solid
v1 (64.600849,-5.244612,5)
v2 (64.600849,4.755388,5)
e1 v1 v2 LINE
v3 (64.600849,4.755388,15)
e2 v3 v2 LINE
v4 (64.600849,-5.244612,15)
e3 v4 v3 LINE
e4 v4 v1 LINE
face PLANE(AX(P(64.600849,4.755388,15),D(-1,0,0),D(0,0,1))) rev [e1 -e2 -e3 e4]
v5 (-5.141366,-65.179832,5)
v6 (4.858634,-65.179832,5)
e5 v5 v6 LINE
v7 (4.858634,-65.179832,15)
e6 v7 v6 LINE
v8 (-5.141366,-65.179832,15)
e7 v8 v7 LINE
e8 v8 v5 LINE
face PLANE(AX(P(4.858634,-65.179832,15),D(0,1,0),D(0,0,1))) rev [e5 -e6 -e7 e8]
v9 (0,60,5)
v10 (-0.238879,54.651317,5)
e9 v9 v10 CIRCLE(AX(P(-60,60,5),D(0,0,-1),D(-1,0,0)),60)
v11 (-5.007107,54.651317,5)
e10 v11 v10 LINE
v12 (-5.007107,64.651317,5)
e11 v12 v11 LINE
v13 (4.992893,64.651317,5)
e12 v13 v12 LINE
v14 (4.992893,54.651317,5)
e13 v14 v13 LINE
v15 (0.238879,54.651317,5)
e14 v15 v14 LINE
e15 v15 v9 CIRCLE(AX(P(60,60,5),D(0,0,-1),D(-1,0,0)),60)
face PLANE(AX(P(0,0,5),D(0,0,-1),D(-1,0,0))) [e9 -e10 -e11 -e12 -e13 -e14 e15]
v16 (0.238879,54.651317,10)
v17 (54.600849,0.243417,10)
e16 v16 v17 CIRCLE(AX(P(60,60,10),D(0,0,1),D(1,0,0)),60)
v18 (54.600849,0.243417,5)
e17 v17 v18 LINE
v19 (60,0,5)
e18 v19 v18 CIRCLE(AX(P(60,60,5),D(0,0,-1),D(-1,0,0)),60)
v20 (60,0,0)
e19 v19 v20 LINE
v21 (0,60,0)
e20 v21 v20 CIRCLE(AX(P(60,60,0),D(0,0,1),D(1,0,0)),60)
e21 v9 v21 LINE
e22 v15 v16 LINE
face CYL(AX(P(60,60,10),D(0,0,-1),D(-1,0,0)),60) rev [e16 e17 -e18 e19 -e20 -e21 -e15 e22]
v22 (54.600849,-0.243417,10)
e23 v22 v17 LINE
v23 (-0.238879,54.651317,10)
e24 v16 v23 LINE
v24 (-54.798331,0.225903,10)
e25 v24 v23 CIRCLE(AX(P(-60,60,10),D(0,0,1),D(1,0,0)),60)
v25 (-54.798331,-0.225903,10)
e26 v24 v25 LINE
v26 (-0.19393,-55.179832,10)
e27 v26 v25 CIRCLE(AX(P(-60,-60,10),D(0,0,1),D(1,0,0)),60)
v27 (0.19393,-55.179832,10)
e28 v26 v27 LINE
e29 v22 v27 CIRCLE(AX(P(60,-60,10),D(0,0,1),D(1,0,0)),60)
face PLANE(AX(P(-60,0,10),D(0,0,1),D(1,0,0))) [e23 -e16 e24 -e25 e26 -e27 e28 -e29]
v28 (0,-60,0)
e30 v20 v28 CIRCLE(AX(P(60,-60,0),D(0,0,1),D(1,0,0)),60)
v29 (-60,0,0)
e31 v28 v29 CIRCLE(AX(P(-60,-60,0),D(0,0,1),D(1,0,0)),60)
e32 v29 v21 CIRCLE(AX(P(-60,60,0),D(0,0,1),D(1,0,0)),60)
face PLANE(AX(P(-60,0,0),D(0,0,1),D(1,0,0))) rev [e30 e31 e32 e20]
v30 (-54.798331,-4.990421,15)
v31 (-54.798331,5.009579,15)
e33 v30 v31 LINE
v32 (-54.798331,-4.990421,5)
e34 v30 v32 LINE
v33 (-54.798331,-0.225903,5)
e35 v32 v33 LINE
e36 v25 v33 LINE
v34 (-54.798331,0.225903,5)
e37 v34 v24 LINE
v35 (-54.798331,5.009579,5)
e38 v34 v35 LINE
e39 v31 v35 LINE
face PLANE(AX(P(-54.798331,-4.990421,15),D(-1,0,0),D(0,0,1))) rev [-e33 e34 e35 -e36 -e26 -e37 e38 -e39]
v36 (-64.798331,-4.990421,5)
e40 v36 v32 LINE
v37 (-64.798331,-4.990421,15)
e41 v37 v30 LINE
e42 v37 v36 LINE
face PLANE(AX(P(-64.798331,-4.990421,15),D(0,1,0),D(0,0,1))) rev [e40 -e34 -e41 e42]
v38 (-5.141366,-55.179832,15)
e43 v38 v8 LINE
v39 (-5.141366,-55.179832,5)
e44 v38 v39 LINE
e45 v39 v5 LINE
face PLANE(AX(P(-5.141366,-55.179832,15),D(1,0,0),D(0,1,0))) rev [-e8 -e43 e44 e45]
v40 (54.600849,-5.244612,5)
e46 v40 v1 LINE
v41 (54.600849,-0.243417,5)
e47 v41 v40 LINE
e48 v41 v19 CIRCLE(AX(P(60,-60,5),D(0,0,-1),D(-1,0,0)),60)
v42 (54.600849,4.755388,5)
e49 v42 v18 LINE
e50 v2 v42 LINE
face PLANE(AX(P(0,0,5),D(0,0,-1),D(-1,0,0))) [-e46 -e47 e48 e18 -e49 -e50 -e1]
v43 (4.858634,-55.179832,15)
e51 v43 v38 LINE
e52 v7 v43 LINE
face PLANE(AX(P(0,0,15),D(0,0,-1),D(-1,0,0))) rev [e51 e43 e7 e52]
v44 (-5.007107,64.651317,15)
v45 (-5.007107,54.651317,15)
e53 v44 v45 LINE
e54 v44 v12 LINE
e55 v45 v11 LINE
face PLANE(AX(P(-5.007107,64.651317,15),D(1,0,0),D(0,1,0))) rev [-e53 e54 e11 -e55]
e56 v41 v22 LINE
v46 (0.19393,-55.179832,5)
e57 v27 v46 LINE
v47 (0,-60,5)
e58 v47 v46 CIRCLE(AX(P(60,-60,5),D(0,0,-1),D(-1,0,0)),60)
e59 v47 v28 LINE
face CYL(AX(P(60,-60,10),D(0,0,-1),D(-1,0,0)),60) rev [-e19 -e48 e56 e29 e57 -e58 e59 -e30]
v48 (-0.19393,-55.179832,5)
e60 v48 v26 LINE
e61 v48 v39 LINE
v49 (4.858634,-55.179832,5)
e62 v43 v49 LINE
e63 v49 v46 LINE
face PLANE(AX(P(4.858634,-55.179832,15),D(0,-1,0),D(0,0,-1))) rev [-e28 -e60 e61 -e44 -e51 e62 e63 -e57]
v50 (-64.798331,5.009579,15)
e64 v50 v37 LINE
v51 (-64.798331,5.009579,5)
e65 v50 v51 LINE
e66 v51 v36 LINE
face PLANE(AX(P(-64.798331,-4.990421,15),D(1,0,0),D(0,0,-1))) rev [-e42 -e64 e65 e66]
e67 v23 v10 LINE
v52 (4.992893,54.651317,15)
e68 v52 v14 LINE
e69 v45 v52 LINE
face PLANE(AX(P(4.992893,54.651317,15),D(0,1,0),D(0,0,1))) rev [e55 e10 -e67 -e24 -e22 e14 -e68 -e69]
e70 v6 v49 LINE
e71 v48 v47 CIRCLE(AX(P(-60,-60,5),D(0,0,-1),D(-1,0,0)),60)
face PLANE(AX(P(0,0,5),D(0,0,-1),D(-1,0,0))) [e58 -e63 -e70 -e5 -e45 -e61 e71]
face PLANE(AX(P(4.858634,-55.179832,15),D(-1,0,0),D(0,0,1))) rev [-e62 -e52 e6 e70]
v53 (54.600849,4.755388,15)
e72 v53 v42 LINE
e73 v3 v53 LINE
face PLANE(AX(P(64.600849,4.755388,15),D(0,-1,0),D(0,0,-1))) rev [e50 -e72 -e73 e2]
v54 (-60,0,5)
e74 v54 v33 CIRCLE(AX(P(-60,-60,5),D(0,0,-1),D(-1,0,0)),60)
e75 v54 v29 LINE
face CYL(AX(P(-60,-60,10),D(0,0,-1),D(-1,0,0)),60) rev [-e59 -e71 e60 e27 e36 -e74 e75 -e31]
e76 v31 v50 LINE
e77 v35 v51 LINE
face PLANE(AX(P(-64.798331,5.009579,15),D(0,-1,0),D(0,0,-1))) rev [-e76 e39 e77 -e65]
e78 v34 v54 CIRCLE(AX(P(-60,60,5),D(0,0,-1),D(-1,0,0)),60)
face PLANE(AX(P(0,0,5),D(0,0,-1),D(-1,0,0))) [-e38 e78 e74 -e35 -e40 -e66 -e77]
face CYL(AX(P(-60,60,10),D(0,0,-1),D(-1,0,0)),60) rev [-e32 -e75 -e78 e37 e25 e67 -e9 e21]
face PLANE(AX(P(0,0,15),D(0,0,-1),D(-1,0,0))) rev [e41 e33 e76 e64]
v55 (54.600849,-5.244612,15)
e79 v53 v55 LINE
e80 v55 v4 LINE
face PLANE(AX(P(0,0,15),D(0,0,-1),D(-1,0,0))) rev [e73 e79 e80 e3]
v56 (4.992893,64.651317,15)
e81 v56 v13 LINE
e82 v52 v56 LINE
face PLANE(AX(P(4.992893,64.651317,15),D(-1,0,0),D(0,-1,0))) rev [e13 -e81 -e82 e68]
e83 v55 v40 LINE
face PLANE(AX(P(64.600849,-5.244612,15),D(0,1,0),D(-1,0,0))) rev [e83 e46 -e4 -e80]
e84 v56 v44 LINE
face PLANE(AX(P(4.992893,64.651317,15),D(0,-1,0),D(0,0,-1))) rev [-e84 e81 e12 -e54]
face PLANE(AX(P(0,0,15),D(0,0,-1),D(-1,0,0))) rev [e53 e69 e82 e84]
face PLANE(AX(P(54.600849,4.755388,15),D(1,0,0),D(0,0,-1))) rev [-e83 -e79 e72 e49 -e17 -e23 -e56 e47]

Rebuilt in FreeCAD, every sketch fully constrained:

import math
import FreeCAD as App
import Part
import Sketcher
from FreeCAD import Vector

doc = App.newDocument("Part")
params = doc.addObject("Spreadsheet::Sheet", "Params")
for row, (alias, value) in enumerate([
    ("sketch1_radius", "60 mm"),
    ("pad1_length", "10 mm"),
    ("sketch2_width", "10 mm"),
    ("pad2_length", "10 mm"),
], start=1):
    params.set(f"A{row}", alias)
    params.set(f"B{row}", "=" + value)
    params.setAlias(f"B{row}", alias)

body = doc.addObject("PartDesign::Body", "Body")

sketch1 = body.newObject("Sketcher::SketchObject", "Sketch")
sketch1.AttachmentSupport = (doc.getObject("XY_Plane"), [""])
sketch1.MapMode = "FlatFace"
sketch1.addGeometry([
    Part.ArcOfCircle(Part.Circle(Vector(60, 60, 0), Vector(0, 0, 1), 60), math.radians(-180), math.radians(-90)),
    Part.ArcOfCircle(Part.Circle(Vector(-60, 60, 0), Vector(0, 0, 1), 60), math.radians(-90), math.radians(0)),
    Part.ArcOfCircle(Part.Circle(Vector(-60, -60, 0), Vector(0, 0, 1), 60), math.radians(0), math.radians(90)),
    Part.ArcOfCircle(Part.Circle(Vector(60, -60, 0), Vector(0, 0, 1), 60), math.radians(90), math.radians(180)),
], False)
sketch1.addConstraint([
    Sketcher.Constraint("Tangent", 0, 1, 1, 2),
    Sketcher.Constraint("Tangent", 1, 1, 2, 2),
    Sketcher.Constraint("Tangent", 2, 1, 3, 2),
    Sketcher.Constraint("Tangent", 3, 1, 0, 2),
    Sketcher.Constraint("Equal", 0, 1),
    Sketcher.Constraint("Equal", 1, 2),
    Sketcher.Constraint("Equal", 2, 3),
    Sketcher.Constraint("Symmetric", 0, 3, 2, 3, -1, 1),
    Sketcher.Constraint("Symmetric", 0, 3, 1, 3, -2),
    Sketcher.Constraint("Radius", 0, 60.0),
])
sketch1.setExpression("Constraints[9]", "Params.sketch1_radius")
pad1 = body.newObject("PartDesign::Pad", "Pad")
pad1.Profile = sketch1
pad1.setExpression("Length", "Params.pad1_length")

sketch2 = body.newObject("Sketcher::SketchObject", "Sketch001")
sketch2.AttachmentSupport = (doc.getObject("XY_Plane"), [""])
sketch2.MapMode = "FlatFace"
sketch2.AttachmentOffset = App.Placement(Vector(0, 0, 10), App.Rotation())
sketch2.addGeometry([
    Part.LineSegment(Vector(-5, -55, 0), Vector(-5, -65, 0)),
    Part.LineSegment(Vector(-5, -65, 0), Vector(5, -65, 0)),
    Part.LineSegment(Vector(5, -65, 0), Vector(5, -55, 0)),
    Part.LineSegment(Vector(5, -55, 0), Vector(-5, -55, 0)),
    Part.LineSegment(Vector(55, 5, 0), Vector(55, -5, 0)),
    Part.LineSegment(Vector(55, -5, 0), Vector(65, -5, 0)),
    Part.LineSegment(Vector(65, -5, 0), Vector(65, 5, 0)),
    Part.LineSegment(Vector(65, 5, 0), Vector(55, 5, 0)),
    Part.LineSegment(Vector(-65, 5, 0), Vector(-65, -5, 0)),
    Part.LineSegment(Vector(-65, -5, 0), Vector(-55, -5, 0)),
    Part.LineSegment(Vector(-55, -5, 0), Vector(-55, 5, 0)),
    Part.LineSegment(Vector(-55, 5, 0), Vector(-65, 5, 0)),
    Part.LineSegment(Vector(-5, 65, 0), Vector(-5, 55, 0)),
    Part.LineSegment(Vector(-5, 55, 0), Vector(5, 55, 0)),
    Part.LineSegment(Vector(5, 55, 0), Vector(5, 65, 0)),
    Part.LineSegment(Vector(5, 65, 0), Vector(-5, 65, 0)),
], False)
sketch2.addConstraint([
    Sketcher.Constraint("Coincident", 0, 2, 1, 1),
    Sketcher.Constraint("Coincident", 1, 2, 2, 1),
    Sketcher.Constraint("Coincident", 2, 2, 3, 1),
    Sketcher.Constraint("Coincident", 3, 2, 0, 1),
    Sketcher.Constraint("Coincident", 4, 2, 5, 1),
    Sketcher.Constraint("Coincident", 5, 2, 6, 1),
    Sketcher.Constraint("Coincident", 6, 2, 7, 1),
    Sketcher.Constraint("Coincident", 7, 2, 4, 1),
    Sketcher.Constraint("Coincident", 8, 2, 9, 1),
    Sketcher.Constraint("Coincident", 9, 2, 10, 1),
    Sketcher.Constraint("Coincident", 10, 2, 11, 1),
    Sketcher.Constraint("Coincident", 11, 2, 8, 1),
    Sketcher.Constraint("Coincident", 12, 2, 13, 1),
    Sketcher.Constraint("Coincident", 13, 2, 14, 1),
    Sketcher.Constraint("Coincident", 14, 2, 15, 1),
    Sketcher.Constraint("Coincident", 15, 2, 12, 1),
    Sketcher.Constraint("Vertical", 0),
    Sketcher.Constraint("Horizontal", 1),
    Sketcher.Constraint("Vertical", 2),
    Sketcher.Constraint("Horizontal", 3),
    Sketcher.Constraint("Vertical", 4),
    Sketcher.Constraint("Horizontal", 5),
    Sketcher.Constraint("Vertical", 6),
    Sketcher.Constraint("Horizontal", 7),
    Sketcher.Constraint("Vertical", 8),
    Sketcher.Constraint("Horizontal", 9),
    Sketcher.Constraint("Vertical", 10),
    Sketcher.Constraint("Horizontal", 11),
    Sketcher.Constraint("Vertical", 12),
    Sketcher.Constraint("Horizontal", 13),
    Sketcher.Constraint("Vertical", 14),
    Sketcher.Constraint("Horizontal", 15),
    Sketcher.Constraint("Equal", 3, 5),
    Sketcher.Constraint("Equal", 7, 9),
    Sketcher.Constraint("Equal", 11, 13),
    Sketcher.Constraint("Equal", 15, 0),
    Sketcher.Constraint("Equal", 2, 4),
    Sketcher.Constraint("Equal", 6, 8),
    Sketcher.Constraint("Equal", 10, 12),
    Sketcher.Constraint("DistanceX", 1, 1, 1, 2, 10.0),
    Sketcher.Constraint("DistanceY", 0, 2, -1, 1, 65.179832),
    Sketcher.Constraint("DistanceX", -1, 1, 4, 2, 54.600849),
    Sketcher.Constraint("DistanceY", 4, 2, -1, 1, 5.244612),
    Sketcher.Constraint("DistanceX", 8, 2, -1, 1, 64.798331),
    Sketcher.Constraint("DistanceY", 8, 2, -1, 1, 4.990421),
    Sketcher.Constraint("DistanceY", 10, 2, 12, 2, 49.641739),
    Sketcher.Constraint("DistanceX", 0, 2, -1, 1, 5.141366),
    Sketcher.Constraint("DistanceX", 12, 2, -1, 1, 5.007107),
])
sketch2.setExpression("Constraints[39]", "Params.sketch2_width")
pad2 = body.newObject("PartDesign::Pad", "Pad001")
pad2.Profile = sketch2
pad2.setExpression("Length", "Params.pad2_length")
pad2.Midplane = True

doc.recompute()
